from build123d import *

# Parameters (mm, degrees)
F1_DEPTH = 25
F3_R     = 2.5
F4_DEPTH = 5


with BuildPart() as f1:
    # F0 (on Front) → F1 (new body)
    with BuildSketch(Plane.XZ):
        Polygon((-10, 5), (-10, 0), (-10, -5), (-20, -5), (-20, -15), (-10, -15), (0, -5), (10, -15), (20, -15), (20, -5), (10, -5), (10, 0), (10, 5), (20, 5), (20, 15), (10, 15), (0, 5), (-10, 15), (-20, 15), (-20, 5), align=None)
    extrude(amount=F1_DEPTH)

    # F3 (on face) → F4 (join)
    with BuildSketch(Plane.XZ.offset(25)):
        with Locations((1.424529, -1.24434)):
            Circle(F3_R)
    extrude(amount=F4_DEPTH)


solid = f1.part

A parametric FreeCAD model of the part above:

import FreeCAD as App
import Part
import Sketcher

V = App.Vector
Q = App.Units.Quantity

doc = App.newDocument("Part")
body = doc.addObject("PartDesign::Body", "Body")

# Sketch on XZ plane
sketch1 = doc.addObject("Sketcher::SketchObject", "Sketch")
body.addObject(sketch1)
sketch1.AttachmentSupport = (doc.XZ_Plane, [""])
sketch1.MapMode = "FlatFace"
sketch1.addGeometry([
    Part.LineSegment(V(-10, 5, 0), V(-10, -5, 0)),  # 0
    Part.LineSegment(V(-10, -5, 0), V(-20, -5, 0)),  # 1
    Part.LineSegment(V(-20, -5, 0), V(-20, -15, 0)),  # 2
    Part.LineSegment(V(-20, -15, 0), V(-10, -15, 0)),  # 3
    Part.LineSegment(V(-10, -15, 0), V(0, -5, 0)),  # 4
    Part.LineSegment(V(0, -5, 0), V(10, -15, 0)),  # 5
    Part.LineSegment(V(10, -15, 0), V(20, -15, 0)),  # 6
    Part.LineSegment(V(20, -15, 0), V(20, -5, 0)),  # 7
    Part.LineSegment(V(20, -5, 0), V(10, -5, 0)),  # 8
    Part.LineSegment(V(10, -5, 0), V(10, 5, 0)),  # 9
    Part.LineSegment(V(10, 5, 0), V(20, 5, 0)),  # 10
    Part.LineSegment(V(20, 5, 0), V(20, 15, 0)),  # 11
    Part.LineSegment(V(20, 15, 0), V(10, 15, 0)),  # 12
    Part.LineSegment(V(10, 15, 0), V(0, 5, 0)),  # 13
    Part.LineSegment(V(0, 5, 0), V(-10, 15, 0)),  # 14
    Part.LineSegment(V(-10, 15, 0), V(-20, 15, 0)),  # 15
    Part.LineSegment(V(-20, 15, 0), V(-20, 5, 0)),  # 16
    Part.LineSegment(V(-20, 5, 0), V(-10, 5, 0)),  # 17
], False)
sketch1.addConstraint([
    Sketcher.Constraint("Coincident", 0, 2, 1, 1),
    Sketcher.Constraint("Coincident", 1, 2, 2, 1),
    Sketcher.Constraint("Coincident", 2, 2, 3, 1),
    Sketcher.Constraint("Coincident", 3, 2, 4, 1),
    Sketcher.Constraint("Coincident", 4, 2, 5, 1),
    Sketcher.Constraint("Coincident", 5, 2, 6, 1),
    Sketcher.Constraint("Coincident", 6, 2, 7, 1),
    Sketcher.Constraint("Coincident", 7, 2, 8, 1),
    Sketcher.Constraint("Coincident", 8, 2, 9, 1),
    Sketcher.Constraint("Coincident", 9, 2, 10, 1),
    Sketcher.Constraint("Coincident", 10, 2, 11, 1),
    Sketcher.Constraint("Coincident", 11, 2, 12, 1),
    Sketcher.Constraint("Coincident", 12, 2, 13, 1),
    Sketcher.Constraint("Coincident", 13, 2, 14, 1),
    Sketcher.Constraint("Coincident", 14, 2, 15, 1),
    Sketcher.Constraint("Coincident", 15, 2, 16, 1),
    Sketcher.Constraint("Coincident", 16, 2, 17, 1),
    Sketcher.Constraint("Coincident", 17, 2, 0, 1),
    Sketcher.Constraint("Vertical", 0),
    Sketcher.Constraint("Horizontal", 1),
    Sketcher.Constraint("Vertical", 2),
    Sketcher.Constraint("Horizontal", 3),
    Sketcher.Constraint("Horizontal", 6),
    Sketcher.Constraint("Vertical", 7),
    Sketcher.Constraint("Horizontal", 8),
    Sketcher.Constraint("Vertical", 9),
    Sketcher.Constraint("Horizontal", 10),
    Sketcher.Constraint("Vertical", 11),
    Sketcher.Constraint("Horizontal", 12),
    Sketcher.Constraint("Horizontal", 15),
    Sketcher.Constraint("Vertical", 16),
    Sketcher.Constraint("Horizontal", 17),
    Sketcher.Constraint("Symmetric", 0, 2, 9, 2, -1, 1),
    Sketcher.Constraint("Symmetric", 2, 2, 11, 2, -1, 1),
    Sketcher.Constraint("Symmetric", 4, 2, 13, 2, -1, 1),
    Sketcher.Constraint("Symmetric", 5, 2, 14, 2, -1, 1),
    Sketcher.Constraint("Symmetric", 7, 2, 16, 2, -1, 1),
    Sketcher.Constraint("Symmetric", 3, 2, 5, 2, -2),
    Sketcher.Constraint("Symmetric", 1, 2, 7, 2, -2),
    Sketcher.Constraint("PointOnObject", 4, 2, -2),
    Sketcher.Constraint("Perpendicular", 4, 5),
    Sketcher.Constraint("Perpendicular", 5, 13),
    Sketcher.Constraint("Horizontal", 1, 2, 4, 2),
    Sketcher.Constraint("Vertical", 0, 2, 3, 2),
    Sketcher.Constraint("Equal", 17, 0),
    Sketcher.Constraint("Equal", 0, 2),
    Sketcher.Constraint("DistanceX", 1, 2, 1, 1, Q("10 mm")),
])
pad1 = doc.addObject("PartDesign::Pad", "Pad")
body.addObject(pad1)
pad1.Profile = sketch1
pad1.Length = 25

# Sketch on XZ plane
sketch2 = doc.addObject("Sketcher::SketchObject", "Sketch001")
body.addObject(sketch2)
sketch2.AttachmentSupport = (doc.XZ_Plane, [""])
sketch2.MapMode = "FlatFace"
sketch2.AttachmentOffset = App.Placement(V(0, 0, 25), App.Rotation())
sketch2.addGeometry(Part.Circle(V(1.424529, -1.24434, 0), V(0, 0, 1), 2.5), False)
sketch2.addConstraint([
    Sketcher.Constraint("Diameter", 0, Q("5 mm")),
    Sketcher.Constraint("DistanceX", -1, 1, 0, 3, Q("1.424529 mm")),
    Sketcher.Constraint("DistanceY", 0, 3, -1, 1, Q("1.24434 mm")),
])
pad2 = doc.addObject("PartDesign::Pad", "Pad001")
body.addObject(pad2)
pad2.Profile = sketch2
pad2.Length = 5

doc.recompute()
